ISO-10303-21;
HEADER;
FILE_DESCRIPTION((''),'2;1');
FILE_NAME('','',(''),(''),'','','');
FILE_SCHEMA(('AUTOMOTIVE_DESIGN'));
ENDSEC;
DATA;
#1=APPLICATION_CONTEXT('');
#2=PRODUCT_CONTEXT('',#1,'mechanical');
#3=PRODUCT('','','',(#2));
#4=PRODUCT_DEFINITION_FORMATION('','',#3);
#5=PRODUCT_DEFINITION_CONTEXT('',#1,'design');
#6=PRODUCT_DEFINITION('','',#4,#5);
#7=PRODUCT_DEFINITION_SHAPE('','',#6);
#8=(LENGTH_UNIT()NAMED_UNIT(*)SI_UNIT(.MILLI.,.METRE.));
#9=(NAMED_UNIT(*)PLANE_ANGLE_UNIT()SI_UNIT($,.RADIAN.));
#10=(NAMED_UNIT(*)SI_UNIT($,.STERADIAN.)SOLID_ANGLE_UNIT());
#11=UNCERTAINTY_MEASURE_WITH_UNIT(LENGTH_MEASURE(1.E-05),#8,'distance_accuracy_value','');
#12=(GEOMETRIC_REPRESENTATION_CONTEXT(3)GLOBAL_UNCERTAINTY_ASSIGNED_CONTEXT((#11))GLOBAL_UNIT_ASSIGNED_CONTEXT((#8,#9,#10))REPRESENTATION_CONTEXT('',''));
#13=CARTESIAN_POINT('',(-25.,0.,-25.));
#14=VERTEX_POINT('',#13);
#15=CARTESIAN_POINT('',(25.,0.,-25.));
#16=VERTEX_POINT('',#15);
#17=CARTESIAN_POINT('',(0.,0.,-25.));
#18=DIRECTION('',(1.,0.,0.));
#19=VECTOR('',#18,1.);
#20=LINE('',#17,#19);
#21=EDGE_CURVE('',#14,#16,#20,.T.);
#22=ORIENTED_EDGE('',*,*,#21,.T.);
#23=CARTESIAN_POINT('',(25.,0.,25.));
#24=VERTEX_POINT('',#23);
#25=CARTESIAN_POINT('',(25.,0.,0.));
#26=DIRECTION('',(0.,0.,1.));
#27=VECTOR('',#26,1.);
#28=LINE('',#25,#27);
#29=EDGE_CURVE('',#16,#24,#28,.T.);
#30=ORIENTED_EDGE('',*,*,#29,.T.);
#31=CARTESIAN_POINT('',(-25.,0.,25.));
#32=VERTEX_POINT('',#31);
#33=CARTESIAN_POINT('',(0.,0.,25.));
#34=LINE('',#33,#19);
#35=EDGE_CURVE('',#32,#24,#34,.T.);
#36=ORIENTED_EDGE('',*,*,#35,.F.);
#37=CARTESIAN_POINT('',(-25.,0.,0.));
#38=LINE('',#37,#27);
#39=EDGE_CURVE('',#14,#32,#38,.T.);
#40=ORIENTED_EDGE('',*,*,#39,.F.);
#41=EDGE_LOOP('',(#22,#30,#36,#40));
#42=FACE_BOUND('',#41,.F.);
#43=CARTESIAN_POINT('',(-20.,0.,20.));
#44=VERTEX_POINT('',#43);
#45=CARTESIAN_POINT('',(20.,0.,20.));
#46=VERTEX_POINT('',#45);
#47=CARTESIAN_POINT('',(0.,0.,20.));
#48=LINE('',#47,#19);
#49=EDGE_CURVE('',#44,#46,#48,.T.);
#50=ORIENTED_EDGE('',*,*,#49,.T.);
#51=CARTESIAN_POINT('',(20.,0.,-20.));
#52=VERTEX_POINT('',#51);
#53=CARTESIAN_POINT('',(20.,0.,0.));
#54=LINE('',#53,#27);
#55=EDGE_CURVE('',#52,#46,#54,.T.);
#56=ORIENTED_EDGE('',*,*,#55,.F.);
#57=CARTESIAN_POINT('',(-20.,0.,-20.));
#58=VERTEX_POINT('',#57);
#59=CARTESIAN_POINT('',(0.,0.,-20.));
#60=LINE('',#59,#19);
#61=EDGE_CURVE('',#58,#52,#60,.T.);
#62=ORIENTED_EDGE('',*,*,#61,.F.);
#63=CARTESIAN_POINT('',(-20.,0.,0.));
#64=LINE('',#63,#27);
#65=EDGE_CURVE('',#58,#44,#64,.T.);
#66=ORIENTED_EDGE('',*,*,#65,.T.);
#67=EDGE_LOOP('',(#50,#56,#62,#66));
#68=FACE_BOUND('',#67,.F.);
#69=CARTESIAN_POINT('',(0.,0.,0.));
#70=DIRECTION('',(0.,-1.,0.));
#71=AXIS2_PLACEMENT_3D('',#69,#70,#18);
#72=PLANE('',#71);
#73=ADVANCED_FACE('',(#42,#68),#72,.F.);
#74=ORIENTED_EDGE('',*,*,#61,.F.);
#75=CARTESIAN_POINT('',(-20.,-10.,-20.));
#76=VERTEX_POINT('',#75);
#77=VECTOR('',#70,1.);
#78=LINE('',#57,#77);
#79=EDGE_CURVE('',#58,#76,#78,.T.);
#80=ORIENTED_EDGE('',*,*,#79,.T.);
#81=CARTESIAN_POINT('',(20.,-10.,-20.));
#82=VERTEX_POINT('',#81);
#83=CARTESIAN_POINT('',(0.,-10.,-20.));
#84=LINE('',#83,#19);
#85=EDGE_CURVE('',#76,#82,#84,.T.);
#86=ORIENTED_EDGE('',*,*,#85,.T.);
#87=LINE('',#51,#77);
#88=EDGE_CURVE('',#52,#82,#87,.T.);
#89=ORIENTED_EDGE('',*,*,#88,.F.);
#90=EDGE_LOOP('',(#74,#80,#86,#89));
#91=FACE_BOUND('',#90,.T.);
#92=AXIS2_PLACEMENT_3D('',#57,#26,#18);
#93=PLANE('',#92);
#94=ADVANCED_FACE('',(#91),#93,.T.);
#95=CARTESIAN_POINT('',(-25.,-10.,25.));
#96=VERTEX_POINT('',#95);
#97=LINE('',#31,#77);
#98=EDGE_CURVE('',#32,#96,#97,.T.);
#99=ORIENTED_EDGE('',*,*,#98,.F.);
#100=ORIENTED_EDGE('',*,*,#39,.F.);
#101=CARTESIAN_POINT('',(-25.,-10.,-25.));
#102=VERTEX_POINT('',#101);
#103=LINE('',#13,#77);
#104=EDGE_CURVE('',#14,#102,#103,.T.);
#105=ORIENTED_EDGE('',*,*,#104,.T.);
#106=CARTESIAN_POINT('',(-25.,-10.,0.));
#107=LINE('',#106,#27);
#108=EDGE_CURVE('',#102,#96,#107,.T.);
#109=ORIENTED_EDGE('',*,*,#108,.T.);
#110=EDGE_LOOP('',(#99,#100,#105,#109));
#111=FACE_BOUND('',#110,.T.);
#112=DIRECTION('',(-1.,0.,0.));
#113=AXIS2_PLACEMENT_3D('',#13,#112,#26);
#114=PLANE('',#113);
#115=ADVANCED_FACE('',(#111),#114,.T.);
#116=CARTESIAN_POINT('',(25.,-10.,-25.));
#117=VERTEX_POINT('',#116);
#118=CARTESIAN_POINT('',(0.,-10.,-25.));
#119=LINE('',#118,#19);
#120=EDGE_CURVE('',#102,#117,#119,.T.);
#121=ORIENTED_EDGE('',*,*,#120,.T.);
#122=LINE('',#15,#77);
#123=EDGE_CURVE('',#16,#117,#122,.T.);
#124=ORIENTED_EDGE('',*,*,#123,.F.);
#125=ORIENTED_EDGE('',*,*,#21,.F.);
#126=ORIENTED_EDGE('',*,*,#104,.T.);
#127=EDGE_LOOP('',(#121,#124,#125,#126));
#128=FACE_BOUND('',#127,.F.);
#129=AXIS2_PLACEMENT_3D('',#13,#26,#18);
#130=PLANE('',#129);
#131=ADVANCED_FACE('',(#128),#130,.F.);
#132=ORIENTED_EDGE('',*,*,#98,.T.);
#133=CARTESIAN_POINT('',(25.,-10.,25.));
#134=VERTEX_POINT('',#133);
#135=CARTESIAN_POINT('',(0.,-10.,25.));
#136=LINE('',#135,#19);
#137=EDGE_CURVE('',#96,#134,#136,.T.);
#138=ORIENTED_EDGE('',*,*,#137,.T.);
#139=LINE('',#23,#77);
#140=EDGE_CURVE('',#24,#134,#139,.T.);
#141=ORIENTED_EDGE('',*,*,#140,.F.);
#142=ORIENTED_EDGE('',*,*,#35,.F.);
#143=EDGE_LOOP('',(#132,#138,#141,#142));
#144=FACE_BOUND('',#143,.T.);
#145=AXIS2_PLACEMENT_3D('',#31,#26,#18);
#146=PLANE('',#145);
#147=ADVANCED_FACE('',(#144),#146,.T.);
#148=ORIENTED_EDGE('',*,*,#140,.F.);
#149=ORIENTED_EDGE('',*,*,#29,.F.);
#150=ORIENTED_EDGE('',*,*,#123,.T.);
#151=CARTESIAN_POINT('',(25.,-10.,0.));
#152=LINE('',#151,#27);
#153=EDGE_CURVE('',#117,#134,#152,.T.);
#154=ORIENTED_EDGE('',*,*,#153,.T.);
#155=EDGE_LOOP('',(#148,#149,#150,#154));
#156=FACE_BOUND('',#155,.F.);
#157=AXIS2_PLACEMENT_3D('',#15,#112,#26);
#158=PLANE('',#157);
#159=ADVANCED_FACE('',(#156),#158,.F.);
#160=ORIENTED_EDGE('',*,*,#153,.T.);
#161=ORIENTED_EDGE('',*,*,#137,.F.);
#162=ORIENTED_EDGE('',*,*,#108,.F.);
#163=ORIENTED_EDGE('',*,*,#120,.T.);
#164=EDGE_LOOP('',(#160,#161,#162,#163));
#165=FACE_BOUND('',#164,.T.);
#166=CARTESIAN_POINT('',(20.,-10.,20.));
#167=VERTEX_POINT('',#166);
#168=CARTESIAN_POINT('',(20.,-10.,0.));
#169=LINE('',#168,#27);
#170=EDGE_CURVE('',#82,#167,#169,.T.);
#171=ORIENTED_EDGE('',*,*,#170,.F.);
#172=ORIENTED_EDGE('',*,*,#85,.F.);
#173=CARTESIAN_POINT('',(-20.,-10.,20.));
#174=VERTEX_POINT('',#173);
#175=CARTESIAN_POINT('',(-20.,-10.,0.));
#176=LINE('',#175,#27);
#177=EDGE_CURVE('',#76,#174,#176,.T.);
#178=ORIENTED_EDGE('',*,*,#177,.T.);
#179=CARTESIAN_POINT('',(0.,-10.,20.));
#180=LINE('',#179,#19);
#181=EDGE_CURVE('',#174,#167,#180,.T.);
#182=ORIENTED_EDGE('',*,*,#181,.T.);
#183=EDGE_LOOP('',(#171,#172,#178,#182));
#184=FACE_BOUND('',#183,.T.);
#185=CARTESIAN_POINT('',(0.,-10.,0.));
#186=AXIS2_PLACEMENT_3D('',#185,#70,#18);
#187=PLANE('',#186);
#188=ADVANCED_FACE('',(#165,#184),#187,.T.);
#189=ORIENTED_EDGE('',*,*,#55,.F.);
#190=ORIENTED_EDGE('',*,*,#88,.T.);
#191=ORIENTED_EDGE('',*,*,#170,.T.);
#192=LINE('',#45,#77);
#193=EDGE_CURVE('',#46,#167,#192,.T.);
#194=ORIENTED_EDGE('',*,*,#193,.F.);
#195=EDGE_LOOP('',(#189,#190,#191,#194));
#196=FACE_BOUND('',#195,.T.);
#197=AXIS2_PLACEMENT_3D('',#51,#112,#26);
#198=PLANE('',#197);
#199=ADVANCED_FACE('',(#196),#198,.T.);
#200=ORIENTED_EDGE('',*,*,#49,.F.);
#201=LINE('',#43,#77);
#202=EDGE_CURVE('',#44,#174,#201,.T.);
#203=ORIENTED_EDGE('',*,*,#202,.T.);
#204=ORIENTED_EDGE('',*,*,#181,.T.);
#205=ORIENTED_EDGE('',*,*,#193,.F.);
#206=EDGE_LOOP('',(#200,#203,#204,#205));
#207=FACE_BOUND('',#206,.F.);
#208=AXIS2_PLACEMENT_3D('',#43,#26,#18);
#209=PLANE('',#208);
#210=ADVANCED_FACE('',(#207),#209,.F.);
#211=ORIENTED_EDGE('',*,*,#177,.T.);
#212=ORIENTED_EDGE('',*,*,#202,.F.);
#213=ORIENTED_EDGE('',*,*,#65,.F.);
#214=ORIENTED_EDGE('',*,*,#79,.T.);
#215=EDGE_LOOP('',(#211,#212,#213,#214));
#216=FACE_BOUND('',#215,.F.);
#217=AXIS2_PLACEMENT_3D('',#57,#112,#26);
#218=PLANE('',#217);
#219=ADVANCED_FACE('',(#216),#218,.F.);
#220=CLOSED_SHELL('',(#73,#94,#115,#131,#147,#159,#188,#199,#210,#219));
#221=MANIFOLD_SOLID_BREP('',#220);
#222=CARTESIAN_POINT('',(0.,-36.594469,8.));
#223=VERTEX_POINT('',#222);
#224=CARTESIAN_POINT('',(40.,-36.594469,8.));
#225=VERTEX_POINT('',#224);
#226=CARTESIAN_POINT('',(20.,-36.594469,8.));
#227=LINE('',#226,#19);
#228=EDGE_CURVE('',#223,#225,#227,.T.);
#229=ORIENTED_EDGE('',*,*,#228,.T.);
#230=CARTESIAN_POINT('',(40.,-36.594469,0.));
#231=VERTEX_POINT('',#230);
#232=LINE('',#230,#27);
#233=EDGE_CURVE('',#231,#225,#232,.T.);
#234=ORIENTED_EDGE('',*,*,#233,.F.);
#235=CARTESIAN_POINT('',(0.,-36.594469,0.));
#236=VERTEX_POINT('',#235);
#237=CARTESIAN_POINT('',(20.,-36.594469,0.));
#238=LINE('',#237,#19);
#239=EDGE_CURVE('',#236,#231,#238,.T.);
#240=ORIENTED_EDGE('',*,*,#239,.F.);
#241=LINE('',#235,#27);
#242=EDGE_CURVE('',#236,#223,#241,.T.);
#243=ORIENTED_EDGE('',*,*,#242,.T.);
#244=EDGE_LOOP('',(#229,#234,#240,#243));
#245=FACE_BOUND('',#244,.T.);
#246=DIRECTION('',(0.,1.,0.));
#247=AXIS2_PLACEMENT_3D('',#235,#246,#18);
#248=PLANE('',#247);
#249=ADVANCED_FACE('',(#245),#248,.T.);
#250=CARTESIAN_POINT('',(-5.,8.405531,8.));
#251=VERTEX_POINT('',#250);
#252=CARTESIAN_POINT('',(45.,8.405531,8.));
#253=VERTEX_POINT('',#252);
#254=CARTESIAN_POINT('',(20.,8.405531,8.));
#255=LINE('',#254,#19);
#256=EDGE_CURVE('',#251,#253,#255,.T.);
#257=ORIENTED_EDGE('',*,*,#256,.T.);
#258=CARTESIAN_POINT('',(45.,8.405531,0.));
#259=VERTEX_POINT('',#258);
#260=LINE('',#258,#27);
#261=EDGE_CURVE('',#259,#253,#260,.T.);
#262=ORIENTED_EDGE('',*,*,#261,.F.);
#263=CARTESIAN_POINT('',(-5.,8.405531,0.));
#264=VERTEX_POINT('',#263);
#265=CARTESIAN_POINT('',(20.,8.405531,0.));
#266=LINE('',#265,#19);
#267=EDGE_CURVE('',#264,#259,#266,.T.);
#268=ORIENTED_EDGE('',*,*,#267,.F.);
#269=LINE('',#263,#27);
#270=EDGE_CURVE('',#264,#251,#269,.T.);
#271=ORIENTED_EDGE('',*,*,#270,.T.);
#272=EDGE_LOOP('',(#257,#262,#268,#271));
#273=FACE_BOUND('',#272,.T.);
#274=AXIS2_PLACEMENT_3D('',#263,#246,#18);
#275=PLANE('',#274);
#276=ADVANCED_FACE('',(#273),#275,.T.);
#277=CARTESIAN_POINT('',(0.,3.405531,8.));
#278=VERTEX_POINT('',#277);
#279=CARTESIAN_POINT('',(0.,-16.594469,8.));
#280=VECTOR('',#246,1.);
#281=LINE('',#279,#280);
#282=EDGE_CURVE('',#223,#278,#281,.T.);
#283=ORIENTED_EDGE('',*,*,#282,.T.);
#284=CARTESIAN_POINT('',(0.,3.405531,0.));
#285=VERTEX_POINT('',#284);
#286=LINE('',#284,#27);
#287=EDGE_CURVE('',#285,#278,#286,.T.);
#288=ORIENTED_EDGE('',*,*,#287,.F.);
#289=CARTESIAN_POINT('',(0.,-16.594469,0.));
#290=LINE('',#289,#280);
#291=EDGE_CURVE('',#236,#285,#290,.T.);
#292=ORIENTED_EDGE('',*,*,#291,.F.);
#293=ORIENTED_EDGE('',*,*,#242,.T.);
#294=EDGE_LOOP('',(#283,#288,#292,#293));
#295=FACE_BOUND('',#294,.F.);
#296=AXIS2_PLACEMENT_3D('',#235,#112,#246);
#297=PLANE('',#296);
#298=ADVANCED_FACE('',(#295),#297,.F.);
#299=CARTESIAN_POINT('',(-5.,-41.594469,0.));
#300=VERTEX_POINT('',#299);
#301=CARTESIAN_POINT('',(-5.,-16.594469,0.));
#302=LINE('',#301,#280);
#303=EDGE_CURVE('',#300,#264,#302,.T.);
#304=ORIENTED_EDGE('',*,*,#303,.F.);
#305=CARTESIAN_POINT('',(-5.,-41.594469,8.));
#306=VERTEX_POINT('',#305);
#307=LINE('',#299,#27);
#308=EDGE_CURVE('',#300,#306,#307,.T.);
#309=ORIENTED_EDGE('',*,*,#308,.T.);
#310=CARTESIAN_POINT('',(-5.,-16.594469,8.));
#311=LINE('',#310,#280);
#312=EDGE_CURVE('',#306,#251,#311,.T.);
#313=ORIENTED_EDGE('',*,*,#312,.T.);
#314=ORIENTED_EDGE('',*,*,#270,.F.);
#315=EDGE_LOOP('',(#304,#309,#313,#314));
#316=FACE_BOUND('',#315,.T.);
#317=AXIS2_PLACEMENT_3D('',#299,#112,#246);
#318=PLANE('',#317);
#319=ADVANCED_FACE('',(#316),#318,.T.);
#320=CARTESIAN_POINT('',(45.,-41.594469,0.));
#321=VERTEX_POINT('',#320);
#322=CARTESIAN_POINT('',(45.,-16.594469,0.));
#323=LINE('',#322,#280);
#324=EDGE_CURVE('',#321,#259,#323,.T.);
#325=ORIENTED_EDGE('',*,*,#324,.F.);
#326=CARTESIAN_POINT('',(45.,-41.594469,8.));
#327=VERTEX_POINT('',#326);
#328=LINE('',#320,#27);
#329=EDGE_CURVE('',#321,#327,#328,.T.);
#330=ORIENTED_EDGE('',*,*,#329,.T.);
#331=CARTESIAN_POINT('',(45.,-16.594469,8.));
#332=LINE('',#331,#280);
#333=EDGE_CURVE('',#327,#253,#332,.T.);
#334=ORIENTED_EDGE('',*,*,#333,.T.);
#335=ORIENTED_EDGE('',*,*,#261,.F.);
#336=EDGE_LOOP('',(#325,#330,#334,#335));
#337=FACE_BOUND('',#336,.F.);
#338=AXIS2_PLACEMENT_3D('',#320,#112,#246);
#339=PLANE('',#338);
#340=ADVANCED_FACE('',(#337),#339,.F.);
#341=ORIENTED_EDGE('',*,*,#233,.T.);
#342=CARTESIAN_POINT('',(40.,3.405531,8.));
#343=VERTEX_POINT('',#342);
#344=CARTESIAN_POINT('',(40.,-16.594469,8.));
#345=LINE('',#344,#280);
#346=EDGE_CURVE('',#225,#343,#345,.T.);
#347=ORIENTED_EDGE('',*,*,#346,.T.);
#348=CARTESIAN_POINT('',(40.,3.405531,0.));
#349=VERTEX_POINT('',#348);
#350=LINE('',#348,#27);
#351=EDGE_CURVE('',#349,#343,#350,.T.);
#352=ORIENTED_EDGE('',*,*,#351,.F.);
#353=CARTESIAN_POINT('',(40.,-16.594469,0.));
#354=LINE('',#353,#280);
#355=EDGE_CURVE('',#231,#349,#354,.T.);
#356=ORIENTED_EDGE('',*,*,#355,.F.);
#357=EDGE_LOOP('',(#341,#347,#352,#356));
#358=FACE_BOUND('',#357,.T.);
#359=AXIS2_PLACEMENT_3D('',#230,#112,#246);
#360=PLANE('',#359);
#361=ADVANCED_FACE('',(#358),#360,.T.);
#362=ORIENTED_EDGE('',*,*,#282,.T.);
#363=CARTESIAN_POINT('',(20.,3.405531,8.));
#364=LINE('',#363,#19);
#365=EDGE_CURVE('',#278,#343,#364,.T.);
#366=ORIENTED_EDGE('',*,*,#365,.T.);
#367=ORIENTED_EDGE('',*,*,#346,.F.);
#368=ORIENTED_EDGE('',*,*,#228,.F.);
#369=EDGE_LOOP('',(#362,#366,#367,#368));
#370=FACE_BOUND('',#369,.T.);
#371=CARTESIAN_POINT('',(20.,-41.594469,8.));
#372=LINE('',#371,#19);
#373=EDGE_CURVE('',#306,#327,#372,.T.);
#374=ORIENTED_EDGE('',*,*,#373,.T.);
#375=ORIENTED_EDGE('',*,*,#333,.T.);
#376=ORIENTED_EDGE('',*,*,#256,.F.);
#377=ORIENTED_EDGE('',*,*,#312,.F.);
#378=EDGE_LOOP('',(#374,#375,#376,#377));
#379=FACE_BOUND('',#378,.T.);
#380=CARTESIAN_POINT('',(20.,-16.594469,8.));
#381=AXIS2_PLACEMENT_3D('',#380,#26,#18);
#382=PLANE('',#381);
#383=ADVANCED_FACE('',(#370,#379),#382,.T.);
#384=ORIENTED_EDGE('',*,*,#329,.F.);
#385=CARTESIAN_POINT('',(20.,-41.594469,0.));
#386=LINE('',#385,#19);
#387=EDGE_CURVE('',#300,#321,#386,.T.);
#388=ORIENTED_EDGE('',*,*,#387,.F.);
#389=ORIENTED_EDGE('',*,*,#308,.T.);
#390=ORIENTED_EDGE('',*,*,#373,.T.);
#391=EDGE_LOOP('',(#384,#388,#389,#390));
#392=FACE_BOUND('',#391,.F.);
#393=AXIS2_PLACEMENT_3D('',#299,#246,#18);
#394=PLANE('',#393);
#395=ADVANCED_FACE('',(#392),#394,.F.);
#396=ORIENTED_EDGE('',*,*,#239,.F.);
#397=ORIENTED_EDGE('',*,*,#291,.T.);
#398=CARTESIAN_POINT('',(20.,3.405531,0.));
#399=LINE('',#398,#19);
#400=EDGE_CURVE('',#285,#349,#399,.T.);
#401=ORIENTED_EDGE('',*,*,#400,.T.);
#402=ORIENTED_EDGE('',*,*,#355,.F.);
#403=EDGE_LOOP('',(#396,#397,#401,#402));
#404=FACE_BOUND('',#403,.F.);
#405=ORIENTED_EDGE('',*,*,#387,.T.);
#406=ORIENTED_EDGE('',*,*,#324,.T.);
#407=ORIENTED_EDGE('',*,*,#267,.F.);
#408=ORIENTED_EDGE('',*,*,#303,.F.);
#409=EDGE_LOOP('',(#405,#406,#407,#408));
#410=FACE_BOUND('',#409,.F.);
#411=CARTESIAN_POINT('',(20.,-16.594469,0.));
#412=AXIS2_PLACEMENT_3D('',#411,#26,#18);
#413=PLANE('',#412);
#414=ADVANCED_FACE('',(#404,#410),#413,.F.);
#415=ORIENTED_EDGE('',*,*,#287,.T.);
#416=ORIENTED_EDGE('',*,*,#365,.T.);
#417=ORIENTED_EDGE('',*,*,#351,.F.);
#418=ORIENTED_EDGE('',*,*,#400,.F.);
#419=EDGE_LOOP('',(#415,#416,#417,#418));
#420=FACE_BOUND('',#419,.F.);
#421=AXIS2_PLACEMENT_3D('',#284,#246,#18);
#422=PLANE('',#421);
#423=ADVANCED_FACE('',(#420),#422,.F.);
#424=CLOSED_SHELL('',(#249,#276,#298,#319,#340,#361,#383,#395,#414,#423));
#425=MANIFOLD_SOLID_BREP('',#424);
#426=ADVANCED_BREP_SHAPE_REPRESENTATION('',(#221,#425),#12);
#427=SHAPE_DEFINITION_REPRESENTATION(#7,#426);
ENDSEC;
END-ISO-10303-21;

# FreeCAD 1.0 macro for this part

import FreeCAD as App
import Part
import Sketcher


def add_polygon(sketch, points):
    """Adds a closed chain of lines whose ends are joined by coincident constraints."""
    first, n = sketch.GeometryCount, len(points)
    for a, b in zip(points, points[1:] + points[:1]):
        sketch.addGeometry(Part.LineSegment(App.Vector(*a, 0), App.Vector(*b, 0)), False)
    for i in range(n):
        sketch.addConstraint(Sketcher.Constraint("Coincident", first + i, 2, first + (i + 1) % n, 1))

doc = App.newDocument("Part")
params = doc.addObject("Spreadsheet::Sheet", "Params")
for row, (alias, value) in enumerate([
    ("sketch1_width", "50 mm"),
    ("sketch1_width2", "40 mm"),
    ("pad1_length", "10 mm"),
    ("sketch2_width", "50 mm"),
    ("sketch2_width2", "40 mm"),
    ("pad2_length", "8 mm"),
], start=1):
    params.set(f"A{row}", alias)
    params.set(f"B{row}", "=" + value)
    params.setAlias(f"B{row}", alias)

body = doc.addObject("PartDesign::Body", "Body")

sketch1 = body.newObject("Sketcher::SketchObject", "Sketch")
sketch1.AttachmentSupport = (doc.getObject("XZ_Plane"), [""])
sketch1.MapMode = "FlatFace"
add_polygon(sketch1, [(-25, 25), (-25, -25), (25, -25), (25, 25)])
add_polygon(sketch1, [(20, -20), (-20, -20), (-20, 20), (20, 20)])
sketch1.addConstraint(Sketcher.Constraint("Vertical", 0))
sketch1.addConstraint(Sketcher.Constraint("Horizontal", 1))
sketch1.addConstraint(Sketcher.Constraint("Vertical", 2))
sketch1.addConstraint(Sketcher.Constraint("Horizontal", 3))
sketch1.addConstraint(Sketcher.Constraint("Horizontal", 4))
sketch1.addConstraint(Sketcher.Constraint("Vertical", 5))
sketch1.addConstraint(Sketcher.Constraint("Horizontal", 6))
sketch1.addConstraint(Sketcher.Constraint("Vertical", 7))
sketch1.addConstraint(Sketcher.Constraint("Symmetric", 0, 2, 2, 2, -1, 1))
sketch1.addConstraint(Sketcher.Constraint("Symmetric", 4, 2, 6, 2, -1, 1))
sketch1.addConstraint(Sketcher.Constraint("Equal", 3, 0))
sketch1.addConstraint(Sketcher.Constraint("Equal", 6, 5))
sketch1.addConstraint(Sketcher.Constraint("DistanceX", 1, 1, 1, 2, 50.0))
sketch1.addConstraint(Sketcher.Constraint("DistanceX", 4, 2, 4, 1, 40.0))
sketch1.setExpression("Constraints[20]", "Params.sketch1_width")
sketch1.setExpression("Constraints[21]", "Params.sketch1_width2")
pad1 = body.newObject("PartDesign::Pad", "Pad")
pad1.Profile = sketch1
pad1.setExpression("Length", "Params.pad1_length")
body2 = doc.addObject("PartDesign::Body", "Body001")

sketch2 = body2.newObject("Sketcher::SketchObject", "Sketch001")
sketch2.AttachmentSupport = (doc.getObject("XY_Plane001"), [""])
sketch2.MapMode = "FlatFace"
add_polygon(sketch2, [(-5, 8.405531), (-5, -41.594469), (45, -41.594469), (45, 8.405531)])
add_polygon(sketch2, [(40, -36.594469), (0, -36.594469), (0, 3.405531), (40, 3.405531)])
sketch2.addConstraint(Sketcher.Constraint("Vertical", 0))
sketch2.addConstraint(Sketcher.Constraint("Horizontal", 1))
sketch2.addConstraint(Sketcher.Constraint("Vertical", 2))
sketch2.addConstraint(Sketcher.Constraint("Horizontal", 3))
sketch2.addConstraint(Sketcher.Constraint("Horizontal", 4))
sketch2.addConstraint(Sketcher.Constraint("Vertical", 5))
sketch2.addConstraint(Sketcher.Constraint("Horizontal", 6))
sketch2.addConstraint(Sketcher.Constraint("Vertical", 7))
sketch2.addConstraint(Sketcher.Constraint("PointOnObject", 4, 2, -2))
sketch2.addConstraint(Sketcher.Constraint("Equal", 3, 0))
sketch2.addConstraint(Sketcher.Constraint("Equal", 6, 5))
sketch2.addConstraint(Sketcher.Constraint("DistanceX", 1, 1, 1, 2, 50.0))
sketch2.addConstraint(Sketcher.Constraint("DistanceX", 4, 2, 4, 1, 40.0))
sketch2.addConstraint(Sketcher.Constraint("DistanceX", 0, 2, -1, 1, 5.0))
sketch2.addConstraint(Sketcher.Constraint("DistanceY", 0, 2, 4, 2, 5.0))
sketch2.addConstraint(Sketcher.Constraint("DistanceY", 0, 2, -1, 1, 41.594469))
sketch2.setExpression("Constraints[19]", "Params.sketch2_width")
sketch2.setExpression("Constraints[20]", "Params.sketch2_width2")
pad2 = body2.newObject("PartDesign::Pad", "Pad001")
pad2.Profile = sketch2
pad2.setExpression("Length", "Params.pad2_length")

doc.recompute()
